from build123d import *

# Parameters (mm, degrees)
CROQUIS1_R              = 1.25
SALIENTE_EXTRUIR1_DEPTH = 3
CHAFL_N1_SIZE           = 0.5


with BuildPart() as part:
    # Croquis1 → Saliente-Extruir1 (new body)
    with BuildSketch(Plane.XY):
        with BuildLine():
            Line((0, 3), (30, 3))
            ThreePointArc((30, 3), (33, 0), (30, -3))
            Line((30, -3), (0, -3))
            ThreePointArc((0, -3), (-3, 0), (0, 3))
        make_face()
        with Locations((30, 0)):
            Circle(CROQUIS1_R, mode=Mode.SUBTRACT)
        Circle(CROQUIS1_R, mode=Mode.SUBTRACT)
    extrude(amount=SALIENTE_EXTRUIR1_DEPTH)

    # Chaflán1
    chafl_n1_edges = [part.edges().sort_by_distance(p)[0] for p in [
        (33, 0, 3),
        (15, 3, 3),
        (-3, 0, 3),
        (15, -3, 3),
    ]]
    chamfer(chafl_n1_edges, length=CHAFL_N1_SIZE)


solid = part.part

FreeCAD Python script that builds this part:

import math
import FreeCAD as App
import Part
import Sketcher

V = App.Vector
Q = App.Units.Quantity


def edges_at(feature, points):
    """Names of the edges that pass closest to the given points."""
    edges = feature.Shape.Edges
    near = lambda p: min(range(len(edges)), key=lambda i: edges[i].distToShape(Part.Vertex(*p))[0])
    return sorted({f"Edge{near(p) + 1}" for p in points})

doc = App.newDocument("Part")
body = doc.addObject("PartDesign::Body", "Body")

# Sketch on XY plane
sketch1 = body.newObject("Sketcher::SketchObject", "Sketch")
sketch1.AttachmentSupport = (doc.getObject("XY_Plane"), [""])
sketch1.MapMode = "FlatFace"
sketch1.addGeometry([
    Part.LineSegment(V(30, 3, 0), V(0, 3, 0)),  # 0
    Part.ArcOfCircle(Part.Circle(V(0, 0, 0), V(0, 0, 1), 3), math.radians(90), math.radians(270)),  # 1
    Part.LineSegment(V(0, -3, 0), V(30, -3, 0)),  # 2
    Part.ArcOfCircle(Part.Circle(V(30, 0, 0), V(0, 0, 1), 3), math.radians(-90), math.radians(90)),  # 3
    Part.Circle(V(30, 0, 0), V(0, 0, 1), 1.2),  # 4
    Part.Circle(V(0, 0, 0), V(0, 0, 1), 1.2),  # 5
], False)
sketch1.addConstraint([
    Sketcher.Constraint("Tangent", 0, 2, 1, 1),
    Sketcher.Constraint("Tangent", 1, 2, 2, 1),
    Sketcher.Constraint("Tangent", 2, 2, 3, 1),
    Sketcher.Constraint("Tangent", 3, 2, 0, 1),
    Sketcher.Constraint("Horizontal", 0),
    Sketcher.Constraint("Horizontal", 2),
    Sketcher.Constraint("Coincident", 1, 3, -1, 1),
    Sketcher.Constraint("Coincident", 5, 3, -1, 1),
    Sketcher.Constraint("Coincident", 4, 3, 3, 3),
    Sketcher.Constraint("Equal", 4, 5),
    Sketcher.Constraint("Radius", 1, Q("3 mm")),
    Sketcher.Constraint("Diameter", 4, Q("2.5 mm")),
    Sketcher.Constraint("DistanceX", 0, 2, 0, 1, Q("30 mm")),
])
pad1 = body.newObject("PartDesign::Pad", "Pad")
pad1.Profile = sketch1
pad1.Length = 3
doc.recompute()

chamfer = body.newObject("PartDesign::Chamfer", "Chamfer")
chamfer.Base = (pad1, edges_at(pad1, [
    (33, 0, 3),
    (15, 3, 3),
    (-3, 0, 3),
    (15, -3, 3),
]))
chamfer.Size = 0.5

doc.recompute()
